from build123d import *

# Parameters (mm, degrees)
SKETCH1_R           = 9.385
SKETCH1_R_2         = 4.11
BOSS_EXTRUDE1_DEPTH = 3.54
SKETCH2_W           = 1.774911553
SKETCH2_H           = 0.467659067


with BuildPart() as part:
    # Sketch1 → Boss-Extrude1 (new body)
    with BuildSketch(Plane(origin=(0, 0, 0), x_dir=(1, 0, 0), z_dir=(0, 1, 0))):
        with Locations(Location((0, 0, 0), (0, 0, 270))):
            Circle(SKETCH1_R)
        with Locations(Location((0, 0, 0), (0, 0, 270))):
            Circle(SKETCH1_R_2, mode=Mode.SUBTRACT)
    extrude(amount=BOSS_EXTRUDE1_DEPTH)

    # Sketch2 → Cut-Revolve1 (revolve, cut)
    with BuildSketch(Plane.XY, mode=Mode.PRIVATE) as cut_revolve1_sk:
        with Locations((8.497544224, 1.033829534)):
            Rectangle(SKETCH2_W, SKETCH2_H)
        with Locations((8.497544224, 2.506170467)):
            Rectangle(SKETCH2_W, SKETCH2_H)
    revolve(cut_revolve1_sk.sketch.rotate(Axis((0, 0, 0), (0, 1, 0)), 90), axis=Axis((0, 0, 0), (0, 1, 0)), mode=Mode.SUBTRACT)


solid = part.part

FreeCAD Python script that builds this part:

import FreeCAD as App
import Part
import Sketcher
Q = App.Units.Quantity


def add_polygon(sketch, points):
    """Adds a closed chain of lines whose ends are joined by coincident constraints."""
    first, n = sketch.GeometryCount, len(points)
    for a, b in zip(points, points[1:] + points[:1]):
        sketch.addGeometry(Part.LineSegment(App.Vector(*a, 0), App.Vector(*b, 0)), False)
    for i in range(n):
        sketch.addConstraint(Sketcher.Constraint("Coincident", first + i, 2, first + (i + 1) % n, 1))

doc = App.newDocument("Part")
body = doc.addObject("PartDesign::Body", "Body")

# Sketch on XZ plane
sketch1 = body.newObject("Sketcher::SketchObject", "Sketch")
sketch1.AttachmentSupport = (doc.getObject("XZ_Plane"), [""])
sketch1.MapMode = "FlatFace"
sketch1.addGeometry([
    Part.Circle(App.Vector(0, 0, 0), App.Vector(0, 0, 1), 9.385),
    Part.Circle(App.Vector(0, 0, 0), App.Vector(0, 0, 1), 4.11),
], False)
sketch1.addConstraint([
    Sketcher.Constraint("Coincident", 0, 3, -1, 1),
    Sketcher.Constraint("Coincident", 1, 3, -1, 1),
    Sketcher.Constraint("Diameter", 0, Q("18.77 mm")),
    Sketcher.Constraint("Diameter", 1, Q("8.22 mm")),
])
pad1 = body.newObject("PartDesign::Pad", "Pad")
pad1.Profile = sketch1
pad1.Length = 3.54
pad1.Reversed = True

# Sketch on XY plane
sketch2 = body.newObject("Sketcher::SketchObject", "Sketch001")
sketch2.AttachmentSupport = (doc.getObject("XY_Plane"), [""])
sketch2.MapMode = "FlatFace"
add_polygon(sketch2, [(7.610088, 1.267659), (7.610088, 0.8), (9.385, 0.8), (9.385, 1.267659)])  # lines 0-3
add_polygon(sketch2, [(7.610088, 2.74), (7.610088, 2.272341), (9.385, 2.272341), (9.385, 2.74)])  # lines 4-7
sketch2.addConstraint([
    Sketcher.Constraint("Vertical", 0),
    Sketcher.Constraint("Horizontal", 1),
    Sketcher.Constraint("Vertical", 2),
    Sketcher.Constraint("Horizontal", 3),
    Sketcher.Constraint("Vertical", 4),
    Sketcher.Constraint("Horizontal", 5),
    Sketcher.Constraint("Vertical", 6),
    Sketcher.Constraint("Horizontal", 7),
    Sketcher.Constraint("Vertical", 3, 2, 4, 2),
    Sketcher.Constraint("Vertical", 2, 2, 5, 2),
    Sketcher.Constraint("Equal", 2, 4),
    Sketcher.Constraint("DistanceY", -1, 1, 0, 2, Q("0.8 mm")),
    Sketcher.Constraint("DistanceY", -1, 1, 6, 2, Q("2.74 mm")),
    Sketcher.Constraint("DistanceX", -1, 1, 1, 2, Q("9.385 mm")),
    Sketcher.Constraint("DistanceX", 1, 1, 1, 2, Q("1.774912 mm")),
    Sketcher.Constraint("DistanceY", 0, 2, 0, 1, Q("0.467659 mm")),
])
groove = body.newObject("PartDesign::Groove", "Groove")
groove.Profile = sketch2
groove.ReferenceAxis = (sketch2, ["V_Axis"])
groove.Angle = 360

doc.recompute()
